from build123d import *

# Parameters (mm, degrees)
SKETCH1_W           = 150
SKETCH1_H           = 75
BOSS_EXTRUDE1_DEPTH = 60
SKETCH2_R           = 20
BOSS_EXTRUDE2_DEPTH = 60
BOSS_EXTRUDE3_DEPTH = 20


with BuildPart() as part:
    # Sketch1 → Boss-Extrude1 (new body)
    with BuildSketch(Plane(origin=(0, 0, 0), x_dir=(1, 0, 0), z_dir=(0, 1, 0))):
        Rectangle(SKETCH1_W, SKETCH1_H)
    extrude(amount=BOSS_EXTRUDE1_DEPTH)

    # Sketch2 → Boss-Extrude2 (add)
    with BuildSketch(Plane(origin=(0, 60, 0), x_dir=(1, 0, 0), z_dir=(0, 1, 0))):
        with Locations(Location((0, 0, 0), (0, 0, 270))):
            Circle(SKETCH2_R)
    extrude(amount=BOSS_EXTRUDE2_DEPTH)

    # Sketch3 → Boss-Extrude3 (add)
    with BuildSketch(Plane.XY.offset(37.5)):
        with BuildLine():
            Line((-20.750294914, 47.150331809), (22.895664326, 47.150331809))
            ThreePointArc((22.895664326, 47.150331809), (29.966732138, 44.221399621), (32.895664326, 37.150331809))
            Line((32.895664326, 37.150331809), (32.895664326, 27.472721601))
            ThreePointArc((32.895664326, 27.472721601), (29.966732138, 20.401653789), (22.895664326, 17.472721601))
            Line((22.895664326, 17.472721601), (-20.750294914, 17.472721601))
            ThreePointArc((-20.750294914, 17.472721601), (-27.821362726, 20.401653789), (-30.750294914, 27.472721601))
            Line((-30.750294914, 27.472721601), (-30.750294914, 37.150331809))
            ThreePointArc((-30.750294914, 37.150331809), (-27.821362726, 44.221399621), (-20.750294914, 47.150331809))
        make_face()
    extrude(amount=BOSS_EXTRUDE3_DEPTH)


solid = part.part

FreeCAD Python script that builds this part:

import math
import FreeCAD as App
import Part
import Sketcher
Q = App.Units.Quantity

doc = App.newDocument("Part")
body = doc.addObject("PartDesign::Body", "Body")

sketch1 = body.newObject("Sketcher::SketchObject", "Sketch")
sketch1.AttachmentSupport = (doc.getObject("XZ_Plane"), [""])
sketch1.MapMode = "FlatFace"
sketch1.addGeometry(Part.LineSegment(App.Vector(-75, -38, 0), App.Vector(-75, 38, 0)), False)
sketch1.addGeometry(Part.LineSegment(App.Vector(-75, 38, 0), App.Vector(75, 38, 0)), False)
sketch1.addGeometry(Part.LineSegment(App.Vector(75, 38, 0), App.Vector(75, -38, 0)), False)
sketch1.addGeometry(Part.LineSegment(App.Vector(75, -38, 0), App.Vector(-75, -38, 0)), False)
sketch1.addConstraint(Sketcher.Constraint("Coincident", 0, 2, 1, 1))
sketch1.addConstraint(Sketcher.Constraint("Coincident", 1, 2, 2, 1))
sketch1.addConstraint(Sketcher.Constraint("Coincident", 2, 2, 3, 1))
sketch1.addConstraint(Sketcher.Constraint("Coincident", 3, 2, 0, 1))
sketch1.addConstraint(Sketcher.Constraint("Vertical", 0))
sketch1.addConstraint(Sketcher.Constraint("Horizontal", 1))
sketch1.addConstraint(Sketcher.Constraint("Vertical", 2))
sketch1.addConstraint(Sketcher.Constraint("Horizontal", 3))
sketch1.addConstraint(Sketcher.Constraint("Symmetric", 0, 2, 2, 2, -1, 1))
sketch1.addConstraint(Sketcher.Constraint("DistanceX", 1, 1, 1, 2, Q("150 mm")))
sketch1.addConstraint(Sketcher.Constraint("DistanceY", 0, 1, 0, 2, Q("75 mm")))
pad1 = body.newObject("PartDesign::Pad", "Pad")
pad1.Profile = sketch1
pad1.Length = 60
pad1.Reversed = True

sketch2 = body.newObject("Sketcher::SketchObject", "Sketch001")
sketch2.AttachmentSupport = (doc.getObject("XZ_Plane"), [""])
sketch2.MapMode = "FlatFace"
sketch2.AttachmentOffset = App.Placement(App.Vector(0, 0, -60), App.Rotation())
sketch2.addGeometry(Part.Circle(App.Vector(0, 0, 0), App.Vector(0, 0, 1), 20), False)
sketch2.addConstraint(Sketcher.Constraint("Coincident", 0, 3, -1, 1))
sketch2.addConstraint(Sketcher.Constraint("Diameter", 0, Q("40 mm")))
pad2 = body.newObject("PartDesign::Pad", "Pad001")
pad2.Profile = sketch2
pad2.Length = 60
pad2.Reversed = True

sketch3 = body.newObject("Sketcher::SketchObject", "Sketch002")
sketch3.AttachmentSupport = (doc.getObject("XY_Plane"), [""])
sketch3.MapMode = "FlatFace"
sketch3.AttachmentOffset = App.Placement(App.Vector(0, 0, 37.5), App.Rotation())
sketch3.addGeometry(Part.LineSegment(App.Vector(23, 47, 0), App.Vector(-21, 47, 0)), False)
sketch3.addGeometry(Part.ArcOfCircle(Part.Circle(App.Vector(-21, 37, 0), App.Vector(0, 0, 1), 10), math.radians(90), math.radians(180)), False)
sketch3.addGeometry(Part.LineSegment(App.Vector(-31, 37, 0), App.Vector(-31, 27, 0)), False)
sketch3.addGeometry(Part.ArcOfCircle(Part.Circle(App.Vector(-21, 27, 0), App.Vector(0, 0, 1), 10), math.radians(180), math.radians(270)), False)
sketch3.addGeometry(Part.LineSegment(App.Vector(-21, 17, 0), App.Vector(23, 17, 0)), False)
sketch3.addGeometry(Part.ArcOfCircle(Part.Circle(App.Vector(23, 27, 0), App.Vector(0, 0, 1), 10), math.radians(-90), math.radians(0)), False)
sketch3.addGeometry(Part.LineSegment(App.Vector(33, 27, 0), App.Vector(33, 37, 0)), False)
sketch3.addGeometry(Part.ArcOfCircle(Part.Circle(App.Vector(23, 37, 0), App.Vector(0, 0, 1), 10), math.radians(0), math.radians(90)), False)
sketch3.addConstraint(Sketcher.Constraint("Tangent", 0, 2, 1, 1))
sketch3.addConstraint(Sketcher.Constraint("Tangent", 1, 2, 2, 1))
sketch3.addConstraint(Sketcher.Constraint("Tangent", 2, 2, 3, 1))
sketch3.addConstraint(Sketcher.Constraint("Tangent", 3, 2, 4, 1))
sketch3.addConstraint(Sketcher.Constraint("Tangent", 4, 2, 5, 1))
sketch3.addConstraint(Sketcher.Constraint("Tangent", 5, 2, 6, 1))
sketch3.addConstraint(Sketcher.Constraint("Tangent", 6, 2, 7, 1))
sketch3.addConstraint(Sketcher.Constraint("Tangent", 7, 2, 0, 1))
sketch3.addConstraint(Sketcher.Constraint("Horizontal", 0))
sketch3.addConstraint(Sketcher.Constraint("Vertical", 2))
sketch3.addConstraint(Sketcher.Constraint("Horizontal", 4))
sketch3.addConstraint(Sketcher.Constraint("Vertical", 6))
sketch3.addConstraint(Sketcher.Constraint("Equal", 1, 3))
sketch3.addConstraint(Sketcher.Constraint("Equal", 3, 5))
sketch3.addConstraint(Sketcher.Constraint("Equal", 5, 7))
sketch3.addConstraint(Sketcher.Constraint("Radius", 1, Q("10 mm")))
sketch3.addConstraint(Sketcher.Constraint("DistanceX", 0, 2, 0, 1, Q("43.645959 mm")))
sketch3.addConstraint(Sketcher.Constraint("DistanceY", 2, 2, 2, 1, Q("9.67761 mm")))
sketch3.addConstraint(Sketcher.Constraint("DistanceY", -1, 1, 1, 3, Q("37.150332 mm")))
sketch3.addConstraint(Sketcher.Constraint("DistanceX", 1, 3, -1, 1, Q("20.750295 mm")))
pad3 = body.newObject("PartDesign::Pad", "Pad002")
pad3.Profile = sketch3
pad3.Length = 20

doc.recompute()
